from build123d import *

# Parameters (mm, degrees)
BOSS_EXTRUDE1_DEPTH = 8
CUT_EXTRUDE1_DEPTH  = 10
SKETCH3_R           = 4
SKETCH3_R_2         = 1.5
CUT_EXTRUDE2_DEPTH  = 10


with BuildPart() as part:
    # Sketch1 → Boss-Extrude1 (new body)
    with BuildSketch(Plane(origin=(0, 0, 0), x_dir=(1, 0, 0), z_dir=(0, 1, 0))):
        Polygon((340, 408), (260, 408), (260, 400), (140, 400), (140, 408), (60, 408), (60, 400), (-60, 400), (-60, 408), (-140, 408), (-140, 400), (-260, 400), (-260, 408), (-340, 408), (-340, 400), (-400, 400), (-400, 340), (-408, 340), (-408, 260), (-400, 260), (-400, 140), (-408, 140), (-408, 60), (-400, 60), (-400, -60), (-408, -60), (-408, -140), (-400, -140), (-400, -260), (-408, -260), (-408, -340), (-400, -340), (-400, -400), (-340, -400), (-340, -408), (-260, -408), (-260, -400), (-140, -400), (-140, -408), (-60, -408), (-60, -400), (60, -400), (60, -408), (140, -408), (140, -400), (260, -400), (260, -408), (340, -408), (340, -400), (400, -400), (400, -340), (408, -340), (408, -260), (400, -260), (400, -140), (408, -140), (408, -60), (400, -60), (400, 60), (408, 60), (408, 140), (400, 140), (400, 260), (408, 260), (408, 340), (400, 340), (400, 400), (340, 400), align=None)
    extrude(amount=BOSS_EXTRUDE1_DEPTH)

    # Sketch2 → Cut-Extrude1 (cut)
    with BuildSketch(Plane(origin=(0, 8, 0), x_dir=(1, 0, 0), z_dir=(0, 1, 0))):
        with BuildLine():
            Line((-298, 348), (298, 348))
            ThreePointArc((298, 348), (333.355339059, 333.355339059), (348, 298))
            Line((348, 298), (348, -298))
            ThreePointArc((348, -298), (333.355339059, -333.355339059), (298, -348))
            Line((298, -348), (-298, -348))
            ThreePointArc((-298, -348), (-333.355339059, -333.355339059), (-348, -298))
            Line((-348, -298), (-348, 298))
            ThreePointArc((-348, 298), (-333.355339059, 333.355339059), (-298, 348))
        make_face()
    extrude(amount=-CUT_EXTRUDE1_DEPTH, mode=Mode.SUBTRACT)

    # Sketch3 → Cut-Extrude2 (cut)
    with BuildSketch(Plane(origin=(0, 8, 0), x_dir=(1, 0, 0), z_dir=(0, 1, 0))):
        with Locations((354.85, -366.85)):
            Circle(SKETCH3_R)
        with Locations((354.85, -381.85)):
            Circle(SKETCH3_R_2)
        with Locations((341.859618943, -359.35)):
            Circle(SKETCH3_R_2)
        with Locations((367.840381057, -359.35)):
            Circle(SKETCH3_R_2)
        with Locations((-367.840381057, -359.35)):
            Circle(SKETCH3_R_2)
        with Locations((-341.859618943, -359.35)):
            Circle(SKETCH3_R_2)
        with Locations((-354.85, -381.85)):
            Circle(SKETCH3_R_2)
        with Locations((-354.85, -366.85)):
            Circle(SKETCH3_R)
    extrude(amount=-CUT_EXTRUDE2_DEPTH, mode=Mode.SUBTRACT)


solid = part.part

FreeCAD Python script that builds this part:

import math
import FreeCAD as App
import Part
import Sketcher
from FreeCAD import Vector
Q = App.Units.Quantity

doc = App.newDocument("Part")
body = doc.addObject("PartDesign::Body", "Body")

# Sketch on XZ plane
sketch1 = doc.addObject("Sketcher::SketchObject", "Sketch")
body.addObject(sketch1)
sketch1.AttachmentSupport = (doc.XZ_Plane, [""])
sketch1.MapMode = "FlatFace"
sketch1.addGeometry([
    Part.LineSegment(Vector(340, -408, 0), Vector(260, -408, 0)),  # 0
    Part.LineSegment(Vector(260, -408, 0), Vector(260, -400, 0)),  # 1
    Part.LineSegment(Vector(260, -400, 0), Vector(140, -400, 0)),  # 2
    Part.LineSegment(Vector(140, -400, 0), Vector(140, -408, 0)),  # 3
    Part.LineSegment(Vector(140, -408, 0), Vector(60, -408, 0)),  # 4
    Part.LineSegment(Vector(60, -408, 0), Vector(60, -400, 0)),  # 5
    Part.LineSegment(Vector(60, -400, 0), Vector(-60, -400, 0)),  # 6
    Part.LineSegment(Vector(-60, -400, 0), Vector(-60, -408, 0)),  # 7
    Part.LineSegment(Vector(-60, -408, 0), Vector(-140, -408, 0)),  # 8
    Part.LineSegment(Vector(-140, -408, 0), Vector(-140, -400, 0)),  # 9
    Part.LineSegment(Vector(-140, -400, 0), Vector(-260, -400, 0)),  # 10
    Part.LineSegment(Vector(-260, -400, 0), Vector(-260, -408, 0)),  # 11
    Part.LineSegment(Vector(-260, -408, 0), Vector(-340, -408, 0)),  # 12
    Part.LineSegment(Vector(-340, -408, 0), Vector(-340, -400, 0)),  # 13
    Part.LineSegment(Vector(-340, -400, 0), Vector(-400, -400, 0)),  # 14
    Part.LineSegment(Vector(-400, -400, 0), Vector(-400, -340, 0)),  # 15
    Part.LineSegment(Vector(-400, -340, 0), Vector(-408, -340, 0)),  # 16
    Part.LineSegment(Vector(-408, -340, 0), Vector(-408, -260, 0)),  # 17
    Part.LineSegment(Vector(-408, -260, 0), Vector(-400, -260, 0)),  # 18
    Part.LineSegment(Vector(-400, -260, 0), Vector(-400, -140, 0)),  # 19
    Part.LineSegment(Vector(-400, -140, 0), Vector(-408, -140, 0)),  # 20
    Part.LineSegment(Vector(-408, -140, 0), Vector(-408, -60, 0)),  # 21
    Part.LineSegment(Vector(-408, -60, 0), Vector(-400, -60, 0)),  # 22
    Part.LineSegment(Vector(-400, -60, 0), Vector(-400, 60, 0)),  # 23
    Part.LineSegment(Vector(-400, 60, 0), Vector(-408, 60, 0)),  # 24
    Part.LineSegment(Vector(-408, 60, 0), Vector(-408, 140, 0)),  # 25
    Part.LineSegment(Vector(-408, 140, 0), Vector(-400, 140, 0)),  # 26
    Part.LineSegment(Vector(-400, 140, 0), Vector(-400, 260, 0)),  # 27
    Part.LineSegment(Vector(-400, 260, 0), Vector(-408, 260, 0)),  # 28
    Part.LineSegment(Vector(-408, 260, 0), Vector(-408, 340, 0)),  # 29
    Part.LineSegment(Vector(-408, 340, 0), Vector(-400, 340, 0)),  # 30
    Part.LineSegment(Vector(-400, 340, 0), Vector(-400, 400, 0)),  # 31
    Part.LineSegment(Vector(-400, 400, 0), Vector(-340, 400, 0)),  # 32
    Part.LineSegment(Vector(-340, 400, 0), Vector(-340, 408, 0)),  # 33
    Part.LineSegment(Vector(-340, 408, 0), Vector(-260, 408, 0)),  # 34
    Part.LineSegment(Vector(-260, 408, 0), Vector(-260, 400, 0)),  # 35
    Part.LineSegment(Vector(-260, 400, 0), Vector(-140, 400, 0)),  # 36
    Part.LineSegment(Vector(-140, 400, 0), Vector(-140, 408, 0)),  # 37
    Part.LineSegment(Vector(-140, 408, 0), Vector(-60, 408, 0)),  # 38
    Part.LineSegment(Vector(-60, 408, 0), Vector(-60, 400, 0)),  # 39
    Part.LineSegment(Vector(-60, 400, 0), Vector(60, 400, 0)),  # 40
    Part.LineSegment(Vector(60, 400, 0), Vector(60, 408, 0)),  # 41
    Part.LineSegment(Vector(60, 408, 0), Vector(140, 408, 0)),  # 42
    Part.LineSegment(Vector(140, 408, 0), Vector(140, 400, 0)),  # 43
    Part.LineSegment(Vector(140, 400, 0), Vector(260, 400, 0)),  # 44
    Part.LineSegment(Vector(260, 400, 0), Vector(260, 408, 0)),  # 45
    Part.LineSegment(Vector(260, 408, 0), Vector(340, 408, 0)),  # 46
    Part.LineSegment(Vector(340, 408, 0), Vector(340, 400, 0)),  # 47
    Part.LineSegment(Vector(340, 400, 0), Vector(400, 400, 0)),  # 48
    Part.LineSegment(Vector(400, 400, 0), Vector(400, 340, 0)),  # 49
    Part.LineSegment(Vector(400, 340, 0), Vector(408, 340, 0)),  # 50
    Part.LineSegment(Vector(408, 340, 0), Vector(408, 260, 0)),  # 51
    Part.LineSegment(Vector(408, 260, 0), Vector(400, 260, 0)),  # 52
    Part.LineSegment(Vector(400, 260, 0), Vector(400, 140, 0)),  # 53
    Part.LineSegment(Vector(400, 140, 0), Vector(408, 140, 0)),  # 54
    Part.LineSegment(Vector(408, 140, 0), Vector(408, 60, 0)),  # 55
    Part.LineSegment(Vector(408, 60, 0), Vector(400, 60, 0)),  # 56
    Part.LineSegment(Vector(400, 60, 0), Vector(400, -60, 0)),  # 57
    Part.LineSegment(Vector(400, -60, 0), Vector(408, -60, 0)),  # 58
    Part.LineSegment(Vector(408, -60, 0), Vector(408, -140, 0)),  # 59
    Part.LineSegment(Vector(408, -140, 0), Vector(400, -140, 0)),  # 60
    Part.LineSegment(Vector(400, -140, 0), Vector(400, -260, 0)),  # 61
    Part.LineSegment(Vector(400, -260, 0), Vector(408, -260, 0)),  # 62
    Part.LineSegment(Vector(408, -260, 0), Vector(408, -340, 0)),  # 63
    Part.LineSegment(Vector(408, -340, 0), Vector(400, -340, 0)),  # 64
    Part.LineSegment(Vector(400, -340, 0), Vector(400, -400, 0)),  # 65
    Part.LineSegment(Vector(400, -400, 0), Vector(340, -400, 0)),  # 66
    Part.LineSegment(Vector(340, -400, 0), Vector(340, -408, 0)),  # 67
], False)
sketch1.addConstraint([
    Sketcher.Constraint("Coincident", 0, 2, 1, 1),
    Sketcher.Constraint("Coincident", 1, 2, 2, 1),
    Sketcher.Constraint("Coincident", 2, 2, 3, 1),
    Sketcher.Constraint("Coincident", 3, 2, 4, 1),
    Sketcher.Constraint("Coincident", 4, 2, 5, 1),
    Sketcher.Constraint("Coincident", 5, 2, 6, 1),
    Sketcher.Constraint("Coincident", 6, 2, 7, 1),
    Sketcher.Constraint("Coincident", 7, 2, 8, 1),
    Sketcher.Constraint("Coincident", 8, 2, 9, 1),
    Sketcher.Constraint("Coincident", 9, 2, 10, 1),
    Sketcher.Constraint("Coincident", 10, 2, 11, 1),
    Sketcher.Constraint("Coincident", 11, 2, 12, 1),
    Sketcher.Constraint("Coincident", 12, 2, 13, 1),
    Sketcher.Constraint("Coincident", 13, 2, 14, 1),
    Sketcher.Constraint("Coincident", 14, 2, 15, 1),
    Sketcher.Constraint("Coincident", 15, 2, 16, 1),
    Sketcher.Constraint("Coincident", 16, 2, 17, 1),
    Sketcher.Constraint("Coincident", 17, 2, 18, 1),
    Sketcher.Constraint("Coincident", 18, 2, 19, 1),
    Sketcher.Constraint("Coincident", 19, 2, 20, 1),
    Sketcher.Constraint("Coincident", 20, 2, 21, 1),
    Sketcher.Constraint("Coincident", 21, 2, 22, 1),
    Sketcher.Constraint("Coincident", 22, 2, 23, 1),
    Sketcher.Constraint("Coincident", 23, 2, 24, 1),
    Sketcher.Constraint("Coincident", 24, 2, 25, 1),
    Sketcher.Constraint("Coincident", 25, 2, 26, 1),
    Sketcher.Constraint("Coincident", 26, 2, 27, 1),
    Sketcher.Constraint("Coincident", 27, 2, 28, 1),
    Sketcher.Constraint("Coincident", 28, 2, 29, 1),
    Sketcher.Constraint("Coincident", 29, 2, 30, 1),
    Sketcher.Constraint("Coincident", 30, 2, 31, 1),
    Sketcher.Constraint("Coincident", 31, 2, 32, 1),
    Sketcher.Constraint("Coincident", 32, 2, 33, 1),
    Sketcher.Constraint("Coincident", 33, 2, 34, 1),
    Sketcher.Constraint("Coincident", 34, 2, 35, 1),
    Sketcher.Constraint("Coincident", 35, 2, 36, 1),
    Sketcher.Constraint("Coincident", 36, 2, 37, 1),
    Sketcher.Constraint("Coincident", 37, 2, 38, 1),
    Sketcher.Constraint("Coincident", 38, 2, 39, 1),
    Sketcher.Constraint("Coincident", 39, 2, 40, 1),
    Sketcher.Constraint("Coincident", 40, 2, 41, 1),
    Sketcher.Constraint("Coincident", 41, 2, 42, 1),
    Sketcher.Constraint("Coincident", 42, 2, 43, 1),
    Sketcher.Constraint("Coincident", 43, 2, 44, 1),
    Sketcher.Constraint("Coincident", 44, 2, 45, 1),
    Sketcher.Constraint("Coincident", 45, 2, 46, 1),
    Sketcher.Constraint("Coincident", 46, 2, 47, 1),
    Sketcher.Constraint("Coincident", 47, 2, 48, 1),
    Sketcher.Constraint("Coincident", 48, 2, 49, 1),
    Sketcher.Constraint("Coincident", 49, 2, 50, 1),
    Sketcher.Constraint("Coincident", 50, 2, 51, 1),
    Sketcher.Constraint("Coincident", 51, 2, 52, 1),
    Sketcher.Constraint("Coincident", 52, 2, 53, 1),
    Sketcher.Constraint("Coincident", 53, 2, 54, 1),
    Sketcher.Constraint("Coincident", 54, 2, 55, 1),
    Sketcher.Constraint("Coincident", 55, 2, 56, 1),
    Sketcher.Constraint("Coincident", 56, 2, 57, 1),
    Sketcher.Constraint("Coincident", 57, 2, 58, 1),
    Sketcher.Constraint("Coincident", 58, 2, 59, 1),
    Sketcher.Constraint("Coincident", 59, 2, 60, 1),
    Sketcher.Constraint("Coincident", 60, 2, 61, 1),
    Sketcher.Constraint("Coincident", 61, 2, 62, 1),
    Sketcher.Constraint("Coincident", 62, 2, 63, 1),
    Sketcher.Constraint("Coincident", 63, 2, 64, 1),
    Sketcher.Constraint("Coincident", 64, 2, 65, 1),
    Sketcher.Constraint("Coincident", 65, 2, 66, 1),
    Sketcher.Constraint("Coincident", 66, 2, 67, 1),
    Sketcher.Constraint("Coincident", 67, 2, 0, 1),
    Sketcher.Constraint("Horizontal", 0),
    Sketcher.Constraint("Vertical", 1),
    Sketcher.Constraint("Horizontal", 2),
    Sketcher.Constraint("Vertical", 3),
    Sketcher.Constraint("Horizontal", 4),
    Sketcher.Constraint("Vertical", 5),
    Sketcher.Constraint("Horizontal", 6),
    Sketcher.Constraint("Vertical", 7),
    Sketcher.Constraint("Horizontal", 8),
    Sketcher.Constraint("Vertical", 9),
    Sketcher.Constraint("Horizontal", 10),
    Sketcher.Constraint("Vertical", 11),
    Sketcher.Constraint("Horizontal", 12),
    Sketcher.Constraint("Vertical", 13),
    Sketcher.Constraint("Horizontal", 14),
    Sketcher.Constraint("Vertical", 15),
    Sketcher.Constraint("Horizontal", 16),
    Sketcher.Constraint("Vertical", 17),
    Sketcher.Constraint("Horizontal", 18),
    Sketcher.Constraint("Vertical", 19),
    Sketcher.Constraint("Horizontal", 20),
    Sketcher.Constraint("Vertical", 21),
    Sketcher.Constraint("Horizontal", 22),
    Sketcher.Constraint("Vertical", 23),
    Sketcher.Constraint("Horizontal", 24),
    Sketcher.Constraint("Vertical", 25),
    Sketcher.Constraint("Horizontal", 26),
    Sketcher.Constraint("Vertical", 27),
    Sketcher.Constraint("Horizontal", 28),
    Sketcher.Constraint("Vertical", 29),
    Sketcher.Constraint("Horizontal", 30),
    Sketcher.Constraint("Vertical", 31),
    Sketcher.Constraint("Horizontal", 32),
    Sketcher.Constraint("Vertical", 33),
    Sketcher.Constraint("Horizontal", 34),
    Sketcher.Constraint("Vertical", 35),
    Sketcher.Constraint("Horizontal", 36),
    Sketcher.Constraint("Vertical", 37),
    Sketcher.Constraint("Horizontal", 38),
    Sketcher.Constraint("Vertical", 39),
    Sketcher.Constraint("Horizontal", 40),
    Sketcher.Constraint("Vertical", 41),
    Sketcher.Constraint("Horizontal", 42),
    Sketcher.Constraint("Vertical", 43),
    Sketcher.Constraint("Horizontal", 44),
    Sketcher.Constraint("Vertical", 45),
    Sketcher.Constraint("Horizontal", 46),
    Sketcher.Constraint("Vertical", 47),
    Sketcher.Constraint("Horizontal", 48),
    Sketcher.Constraint("Vertical", 49),
    Sketcher.Constraint("Horizontal", 50),
    Sketcher.Constraint("Vertical", 51),
    Sketcher.Constraint("Horizontal", 52),
    Sketcher.Constraint("Vertical", 53),
    Sketcher.Constraint("Horizontal", 54),
    Sketcher.Constraint("Vertical", 55),
    Sketcher.Constraint("Horizontal", 56),
    Sketcher.Constraint("Vertical", 57),
    Sketcher.Constraint("Horizontal", 58),
    Sketcher.Constraint("Vertical", 59),
    Sketcher.Constraint("Horizontal", 60),
    Sketcher.Constraint("Vertical", 61),
    Sketcher.Constraint("Horizontal", 62),
    Sketcher.Constraint("Vertical", 63),
    Sketcher.Constraint("Horizontal", 64),
    Sketcher.Constraint("Vertical", 65),
    Sketcher.Constraint("Horizontal", 66),
    Sketcher.Constraint("Vertical", 67),
    Sketcher.Constraint("Symmetric", 0, 2, 34, 2, -1, 1),
    Sketcher.Constraint("Symmetric", 2, 2, 36, 2, -1, 1),
    Sketcher.Constraint("Symmetric", 4, 2, 38, 2, -1, 1),
    Sketcher.Constraint("Symmetric", 6, 2, 40, 2, -1, 1),
    Sketcher.Constraint("Symmetric", 8, 2, 42, 2, -1, 1),
    Sketcher.Constraint("Symmetric", 10, 2, 44, 2, -1, 1),
    Sketcher.Constraint("Symmetric", 12, 2, 46, 2, -1, 1),
    Sketcher.Constraint("Symmetric", 14, 2, 48, 2, -1, 1),
    Sketcher.Constraint("Symmetric", 16, 2, 50, 2, -1, 1),
    Sketcher.Constraint("Symmetric", 18, 2, 52, 2, -1, 1),
    Sketcher.Constraint("Symmetric", 20, 2, 54, 2, -1, 1),
    Sketcher.Constraint("Symmetric", 22, 2, 56, 2, -1, 1),
    Sketcher.Constraint("Symmetric", 24, 2, 58, 2, -1, 1),
    Sketcher.Constraint("Symmetric", 26, 2, 60, 2, -1, 1),
    Sketcher.Constraint("Symmetric", 28, 2, 62, 2, -1, 1),
    Sketcher.Constraint("Symmetric", 30, 2, 64, 2, -1, 1),
    Sketcher.Constraint("Symmetric", 32, 2, 66, 2, -1, 1),
    Sketcher.Constraint("Symmetric", 4, 2, 7, 2, -2),
    Sketcher.Constraint("Symmetric", 2, 2, 9, 2, -2),
    Sketcher.Constraint("Symmetric", 0, 2, 11, 2, -2),
    Sketcher.Constraint("Symmetric", 32, 2, 47, 2, -2),
    Sketcher.Constraint("Symmetric", 30, 2, 49, 2, -2),
    Sketcher.Constraint("Symmetric", 28, 2, 51, 2, -2),
    Sketcher.Constraint("Symmetric", 26, 2, 53, 2, -2),
    Sketcher.Constraint("Symmetric", 24, 2, 55, 2, -2),
    Sketcher.Constraint("Horizontal", 0, 2, 3, 2),
    Sketcher.Constraint("Horizontal", 2, 2, 5, 2),
    Sketcher.Constraint("Horizontal", 10, 2, 13, 2),
    Sketcher.Constraint("Vertical", 15, 2, 18, 2),
    Sketcher.Constraint("Vertical", 17, 2, 20, 2),
    Sketcher.Constraint("Vertical", 19, 2, 22, 2),
    Sketcher.Constraint("Equal", 0, 4),
    Sketcher.Constraint("Equal", 2, 6),
    Sketcher.Constraint("Equal", 64, 1),
    Sketcher.Constraint("Equal", 66, 15),
    Sketcher.Constraint("Equal", 46, 17),
    Sketcher.Constraint("Equal", 44, 19),
    Sketcher.Constraint("Equal", 17, 21),
    Sketcher.Constraint("Equal", 19, 23),
    Sketcher.Constraint("DistanceX", 0, 2, 0, 1, Q("80 mm")),
    Sketcher.Constraint("DistanceX", 2, 2, 2, 1, Q("120 mm")),
    Sketcher.Constraint("DistanceX", 14, 2, 14, 1, Q("60 mm")),
    Sketcher.Constraint("DistanceX", 16, 2, 16, 1, Q("8 mm")),
])
pad1 = doc.addObject("PartDesign::Pad", "Pad")
body.addObject(pad1)
pad1.Profile = sketch1
pad1.Length = 8
pad1.Reversed = True

# Sketch on XZ plane
sketch2 = doc.addObject("Sketcher::SketchObject", "Sketch001")
body.addObject(sketch2)
sketch2.AttachmentSupport = (doc.XZ_Plane, [""])
sketch2.MapMode = "FlatFace"
sketch2.AttachmentOffset = App.Placement(Vector(0, 0, -8), App.Rotation())
sketch2.addGeometry([
    Part.LineSegment(Vector(298, -348, 0), Vector(-298, -348, 0)),  # 0
    Part.ArcOfCircle(Part.Circle(Vector(-298, -298, 0), Vector(0, 0, 1), 50), math.radians(-180), math.radians(-90)),  # 1
    Part.LineSegment(Vector(-348, -298, 0), Vector(-348, 298, 0)),  # 2
    Part.ArcOfCircle(Part.Circle(Vector(-298, 298, 0), Vector(0, 0, 1), 50), math.radians(90), math.radians(180)),  # 3
    Part.LineSegment(Vector(-298, 348, 0), Vector(298, 348, 0)),  # 4
    Part.ArcOfCircle(Part.Circle(Vector(298, 298, 0), Vector(0, 0, 1), 50), math.radians(0), math.radians(90)),  # 5
    Part.LineSegment(Vector(348, 298, 0), Vector(348, -298, 0)),  # 6
    Part.ArcOfCircle(Part.Circle(Vector(298, -298, 0), Vector(0, 0, 1), 50), math.radians(-90), math.radians(0)),  # 7
], False)
sketch2.addConstraint([
    Sketcher.Constraint("Tangent", 0, 2, 1, 2),
    Sketcher.Constraint("Tangent", 1, 1, 2, 1),
    Sketcher.Constraint("Tangent", 2, 2, 3, 2),
    Sketcher.Constraint("Tangent", 3, 1, 4, 1),
    Sketcher.Constraint("Tangent", 4, 2, 5, 2),
    Sketcher.Constraint("Tangent", 5, 1, 6, 1),
    Sketcher.Constraint("Tangent", 6, 2, 7, 2),
    Sketcher.Constraint("Tangent", 7, 1, 0, 1),
    Sketcher.Constraint("Horizontal", 0),
    Sketcher.Constraint("Vertical", 2),
    Sketcher.Constraint("Horizontal", 4),
    Sketcher.Constraint("Vertical", 6),
    Sketcher.Constraint("Equal", 1, 3),
    Sketcher.Constraint("Equal", 3, 5),
    Sketcher.Constraint("Equal", 5, 7),
    Sketcher.Constraint("Symmetric", 1, 3, 5, 3, -1, 1),
    Sketcher.Constraint("Equal", 4, 2),
    Sketcher.Constraint("Radius", 1, Q("50 mm")),
    Sketcher.Constraint("DistanceX", 0, 2, 0, 1, Q("596 mm")),
])
pocket1 = doc.addObject("PartDesign::Pocket", "Pocket")
body.addObject(pocket1)
pocket1.Profile = sketch2
pocket1.Length = 10
pocket1.Reversed = True

# Sketch on XZ plane
sketch3 = doc.addObject("Sketcher::SketchObject", "Sketch002")
body.addObject(sketch3)
sketch3.AttachmentSupport = (doc.XZ_Plane, [""])
sketch3.MapMode = "FlatFace"
sketch3.AttachmentOffset = App.Placement(Vector(0, 0, -8), App.Rotation())
sketch3.addGeometry([
    Part.Circle(Vector(354.9, 366.9, 0), Vector(0, 0, 1), 4),  # 0
    Part.Circle(Vector(354.9, 381.9, 0), Vector(0, 0, 1), 1.5),  # 1
    Part.Circle(Vector(341.9, 359.4, 0), Vector(0, 0, 1), 1.5),  # 2
    Part.Circle(Vector(367.8, 359.4, 0), Vector(0, 0, 1), 1.5),  # 3
    Part.Circle(Vector(-367.8, 359.4, 0), Vector(0, 0, 1), 1.5),  # 4
    Part.Circle(Vector(-341.9, 359.4, 0), Vector(0, 0, 1), 1.5),  # 5
    Part.Circle(Vector(-354.9, 381.9, 0), Vector(0, 0, 1), 1.5),  # 6
    Part.Circle(Vector(-354.9, 366.9, 0), Vector(0, 0, 1), 4),  # 7
], False)
sketch3.addConstraint([
    Sketcher.Constraint("Equal", 1, 2),
    Sketcher.Constraint("Equal", 2, 3),
    Sketcher.Constraint("Equal", 3, 4),
    Sketcher.Constraint("Equal", 4, 5),
    Sketcher.Constraint("Equal", 5, 6),
    Sketcher.Constraint("Equal", 0, 7),
    Sketcher.Constraint("Symmetric", 3, 3, 4, 3, -2),
    Sketcher.Constraint("Symmetric", 2, 3, 5, 3, -2),
    Sketcher.Constraint("Symmetric", 1, 3, 6, 3, -2),
    Sketcher.Constraint("Symmetric", 0, 3, 7, 3, -2),
    Sketcher.Constraint("Horizontal", 2, 3, 3, 3),
    Sketcher.Constraint("Vertical", 0, 3, 1, 3),
    Sketcher.Constraint("Diameter", 0, Q("8 mm")),
    Sketcher.Constraint("Diameter", 1, Q("3 mm")),
    Sketcher.Constraint("DistanceY", 0, 3, 1, 3, Q("15 mm")),
    Sketcher.Constraint("DistanceY", 2, 3, 0, 3, Q("7.5 mm")),
    Sketcher.Constraint("DistanceX", 4, 3, 2, 3, Q("709.7 mm")),
    Sketcher.Constraint("DistanceX", 6, 3, 1, 3, Q("709.7 mm")),
    Sketcher.Constraint("DistanceY", -1, 1, 0, 3, Q("366.85 mm")),
    Sketcher.Constraint("DistanceX", -1, 1, 2, 3, Q("341.859619 mm")),
])
pocket2 = doc.addObject("PartDesign::Pocket", "Pocket001")
body.addObject(pocket2)
pocket2.Profile = sketch3
pocket2.Length = 10
pocket2.Reversed = True

doc.recompute()
